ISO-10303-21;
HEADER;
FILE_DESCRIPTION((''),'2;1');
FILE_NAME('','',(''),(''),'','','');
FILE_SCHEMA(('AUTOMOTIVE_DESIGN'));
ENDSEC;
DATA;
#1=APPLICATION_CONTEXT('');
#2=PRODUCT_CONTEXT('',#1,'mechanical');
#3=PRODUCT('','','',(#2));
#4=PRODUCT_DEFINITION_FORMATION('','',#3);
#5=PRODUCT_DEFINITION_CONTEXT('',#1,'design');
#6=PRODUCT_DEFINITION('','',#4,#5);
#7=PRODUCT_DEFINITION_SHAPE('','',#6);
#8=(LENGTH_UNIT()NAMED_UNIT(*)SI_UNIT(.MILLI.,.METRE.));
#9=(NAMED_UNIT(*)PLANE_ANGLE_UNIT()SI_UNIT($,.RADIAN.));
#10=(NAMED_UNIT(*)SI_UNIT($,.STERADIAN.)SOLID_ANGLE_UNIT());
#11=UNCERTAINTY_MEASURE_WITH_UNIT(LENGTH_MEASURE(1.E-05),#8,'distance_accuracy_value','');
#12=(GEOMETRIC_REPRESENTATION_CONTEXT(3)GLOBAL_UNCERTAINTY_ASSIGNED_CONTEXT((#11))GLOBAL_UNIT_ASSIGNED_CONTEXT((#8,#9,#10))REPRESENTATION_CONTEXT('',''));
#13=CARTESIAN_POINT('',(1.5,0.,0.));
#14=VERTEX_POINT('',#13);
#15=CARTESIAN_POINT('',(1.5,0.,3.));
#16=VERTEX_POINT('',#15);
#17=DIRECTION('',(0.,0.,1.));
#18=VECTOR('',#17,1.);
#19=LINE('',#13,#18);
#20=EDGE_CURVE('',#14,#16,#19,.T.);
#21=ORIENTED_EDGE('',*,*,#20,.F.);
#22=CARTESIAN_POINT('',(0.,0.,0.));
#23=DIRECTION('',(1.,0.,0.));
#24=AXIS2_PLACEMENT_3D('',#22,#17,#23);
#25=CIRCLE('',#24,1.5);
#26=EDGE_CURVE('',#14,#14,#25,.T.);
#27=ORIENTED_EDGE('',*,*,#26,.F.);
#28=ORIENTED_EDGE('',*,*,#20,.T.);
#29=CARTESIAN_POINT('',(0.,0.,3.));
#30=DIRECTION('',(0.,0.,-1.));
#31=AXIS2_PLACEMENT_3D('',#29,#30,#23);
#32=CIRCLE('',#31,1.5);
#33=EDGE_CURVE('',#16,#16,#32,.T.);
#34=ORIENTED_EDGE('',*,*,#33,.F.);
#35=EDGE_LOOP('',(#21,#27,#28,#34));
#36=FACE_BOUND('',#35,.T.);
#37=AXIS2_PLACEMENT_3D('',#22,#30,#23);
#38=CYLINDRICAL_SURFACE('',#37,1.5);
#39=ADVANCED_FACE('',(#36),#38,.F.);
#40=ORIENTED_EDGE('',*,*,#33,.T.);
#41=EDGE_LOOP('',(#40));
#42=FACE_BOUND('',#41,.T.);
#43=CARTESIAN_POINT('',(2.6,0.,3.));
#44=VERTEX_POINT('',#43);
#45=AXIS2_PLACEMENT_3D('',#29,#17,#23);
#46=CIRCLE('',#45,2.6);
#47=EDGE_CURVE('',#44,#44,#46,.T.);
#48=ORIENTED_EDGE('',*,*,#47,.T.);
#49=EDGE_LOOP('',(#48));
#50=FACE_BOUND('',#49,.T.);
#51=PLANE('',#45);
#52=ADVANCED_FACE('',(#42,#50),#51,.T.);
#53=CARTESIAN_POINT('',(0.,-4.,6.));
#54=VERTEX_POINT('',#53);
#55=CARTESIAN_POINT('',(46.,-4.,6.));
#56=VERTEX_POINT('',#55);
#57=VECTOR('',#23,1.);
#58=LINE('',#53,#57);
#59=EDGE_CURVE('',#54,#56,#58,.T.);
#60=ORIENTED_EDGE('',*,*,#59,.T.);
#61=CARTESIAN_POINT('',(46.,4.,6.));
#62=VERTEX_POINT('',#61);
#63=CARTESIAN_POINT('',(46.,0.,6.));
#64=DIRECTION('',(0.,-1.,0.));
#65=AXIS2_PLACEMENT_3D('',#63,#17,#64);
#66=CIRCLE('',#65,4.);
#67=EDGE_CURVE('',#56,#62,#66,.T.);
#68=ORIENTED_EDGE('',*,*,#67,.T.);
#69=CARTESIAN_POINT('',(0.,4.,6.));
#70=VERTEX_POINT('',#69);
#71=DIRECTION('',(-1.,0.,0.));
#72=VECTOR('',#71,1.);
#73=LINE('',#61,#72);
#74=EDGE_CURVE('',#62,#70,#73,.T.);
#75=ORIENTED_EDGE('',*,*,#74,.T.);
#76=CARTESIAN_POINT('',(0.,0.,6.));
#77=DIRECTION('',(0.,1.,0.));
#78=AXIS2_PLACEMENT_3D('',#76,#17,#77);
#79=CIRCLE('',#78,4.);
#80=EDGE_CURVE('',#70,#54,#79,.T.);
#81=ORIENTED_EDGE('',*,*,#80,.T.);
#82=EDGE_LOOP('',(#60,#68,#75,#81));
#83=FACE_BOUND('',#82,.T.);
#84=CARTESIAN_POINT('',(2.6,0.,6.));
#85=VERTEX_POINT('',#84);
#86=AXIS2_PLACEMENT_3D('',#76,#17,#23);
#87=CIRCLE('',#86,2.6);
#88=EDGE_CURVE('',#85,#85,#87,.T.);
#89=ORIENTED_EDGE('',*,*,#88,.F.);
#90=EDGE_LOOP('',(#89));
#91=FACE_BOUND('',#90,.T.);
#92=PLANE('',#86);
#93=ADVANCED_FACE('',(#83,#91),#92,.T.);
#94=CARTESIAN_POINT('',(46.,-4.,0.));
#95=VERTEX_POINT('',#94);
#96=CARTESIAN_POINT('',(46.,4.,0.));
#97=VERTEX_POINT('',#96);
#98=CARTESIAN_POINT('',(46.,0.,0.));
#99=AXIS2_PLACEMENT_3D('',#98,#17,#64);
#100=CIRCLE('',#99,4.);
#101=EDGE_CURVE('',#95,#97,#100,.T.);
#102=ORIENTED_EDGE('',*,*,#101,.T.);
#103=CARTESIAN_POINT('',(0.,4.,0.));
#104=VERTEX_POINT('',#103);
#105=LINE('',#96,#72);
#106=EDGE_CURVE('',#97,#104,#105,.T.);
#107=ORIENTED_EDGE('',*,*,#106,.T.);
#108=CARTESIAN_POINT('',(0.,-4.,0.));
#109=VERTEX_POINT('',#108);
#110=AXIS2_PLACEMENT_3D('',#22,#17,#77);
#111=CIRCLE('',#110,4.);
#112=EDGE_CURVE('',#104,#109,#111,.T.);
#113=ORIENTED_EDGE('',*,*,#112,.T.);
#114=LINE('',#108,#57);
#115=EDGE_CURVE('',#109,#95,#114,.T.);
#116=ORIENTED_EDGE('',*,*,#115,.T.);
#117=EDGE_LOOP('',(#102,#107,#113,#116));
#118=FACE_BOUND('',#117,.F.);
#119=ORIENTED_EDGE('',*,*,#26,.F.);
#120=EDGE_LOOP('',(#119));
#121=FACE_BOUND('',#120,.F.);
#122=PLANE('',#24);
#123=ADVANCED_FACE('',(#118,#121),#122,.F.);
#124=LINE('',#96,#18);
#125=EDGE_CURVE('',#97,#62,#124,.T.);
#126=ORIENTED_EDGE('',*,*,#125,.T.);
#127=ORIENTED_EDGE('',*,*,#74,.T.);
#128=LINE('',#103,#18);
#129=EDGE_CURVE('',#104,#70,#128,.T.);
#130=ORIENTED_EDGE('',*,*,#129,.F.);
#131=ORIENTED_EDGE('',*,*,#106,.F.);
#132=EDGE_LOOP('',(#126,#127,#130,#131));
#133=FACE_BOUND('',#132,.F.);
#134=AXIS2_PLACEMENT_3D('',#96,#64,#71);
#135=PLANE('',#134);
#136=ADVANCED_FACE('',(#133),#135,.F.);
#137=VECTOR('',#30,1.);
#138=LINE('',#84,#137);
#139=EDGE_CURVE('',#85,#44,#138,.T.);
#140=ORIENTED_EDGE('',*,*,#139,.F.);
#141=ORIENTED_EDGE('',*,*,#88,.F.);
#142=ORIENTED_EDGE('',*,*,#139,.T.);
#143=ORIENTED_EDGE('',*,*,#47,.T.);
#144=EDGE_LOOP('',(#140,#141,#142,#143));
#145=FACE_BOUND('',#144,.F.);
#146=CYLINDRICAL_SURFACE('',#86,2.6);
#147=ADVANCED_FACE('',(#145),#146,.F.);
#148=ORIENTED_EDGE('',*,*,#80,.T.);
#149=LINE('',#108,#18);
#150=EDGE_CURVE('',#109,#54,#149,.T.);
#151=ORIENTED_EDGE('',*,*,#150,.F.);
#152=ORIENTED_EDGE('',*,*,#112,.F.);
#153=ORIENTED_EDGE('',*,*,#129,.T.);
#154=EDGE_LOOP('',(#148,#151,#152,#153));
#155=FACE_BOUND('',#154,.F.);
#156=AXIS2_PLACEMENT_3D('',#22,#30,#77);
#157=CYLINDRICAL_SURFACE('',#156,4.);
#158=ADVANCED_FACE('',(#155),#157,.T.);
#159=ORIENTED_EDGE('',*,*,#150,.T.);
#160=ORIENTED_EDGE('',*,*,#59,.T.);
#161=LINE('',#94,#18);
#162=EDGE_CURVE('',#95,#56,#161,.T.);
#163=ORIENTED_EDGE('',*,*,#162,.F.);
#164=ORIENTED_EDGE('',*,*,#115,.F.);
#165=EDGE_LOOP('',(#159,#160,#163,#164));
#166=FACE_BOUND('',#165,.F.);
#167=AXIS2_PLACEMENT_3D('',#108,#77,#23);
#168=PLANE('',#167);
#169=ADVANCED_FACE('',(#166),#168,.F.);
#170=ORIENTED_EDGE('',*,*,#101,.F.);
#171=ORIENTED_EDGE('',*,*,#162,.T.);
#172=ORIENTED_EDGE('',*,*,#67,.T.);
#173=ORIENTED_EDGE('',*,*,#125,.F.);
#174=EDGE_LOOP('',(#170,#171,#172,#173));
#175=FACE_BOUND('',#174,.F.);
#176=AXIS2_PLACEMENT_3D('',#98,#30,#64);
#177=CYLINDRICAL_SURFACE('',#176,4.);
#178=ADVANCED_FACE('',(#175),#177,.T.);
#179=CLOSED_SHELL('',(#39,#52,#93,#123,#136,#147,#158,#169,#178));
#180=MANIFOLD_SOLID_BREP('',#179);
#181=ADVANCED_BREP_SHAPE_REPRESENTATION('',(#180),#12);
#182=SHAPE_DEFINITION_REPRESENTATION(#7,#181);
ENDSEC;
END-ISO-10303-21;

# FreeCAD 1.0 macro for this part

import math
import FreeCAD as App
import Part
import Sketcher
from FreeCAD import Vector
Q = App.Units.Quantity

doc = App.newDocument("Part")
body = doc.addObject("PartDesign::Body", "Body")

sketch1 = body.newObject("Sketcher::SketchObject", "Sketch")
sketch1.AttachmentSupport = (doc.getObject("XY_Plane"), [""])
sketch1.MapMode = "FlatFace"
sketch1.addGeometry([
    Part.ArcOfCircle(Part.Circle(Vector(0, 0, 0), Vector(0, 0, 1), 4), math.radians(90), math.radians(270)),
    Part.LineSegment(Vector(0, -4, 0), Vector(46, -4, 0)),
    Part.ArcOfCircle(Part.Circle(Vector(46, 0, 0), Vector(0, 0, 1), 4), math.radians(-90), math.radians(90)),
    Part.LineSegment(Vector(46, 4, 0), Vector(0, 4, 0)),
    Part.Circle(Vector(0, 0, 0), Vector(0, 0, 1), 1.5),
], False)
sketch1.addConstraint([
    Sketcher.Constraint("Tangent", 0, 2, 1, 1),
    Sketcher.Constraint("Tangent", 1, 2, 2, 1),
    Sketcher.Constraint("Tangent", 2, 2, 3, 1),
    Sketcher.Constraint("Tangent", 3, 2, 0, 1),
    Sketcher.Constraint("Horizontal", 1),
    Sketcher.Constraint("Horizontal", 3),
    Sketcher.Constraint("Coincident", 0, 3, -1, 1),
    Sketcher.Constraint("Coincident", 4, 3, -1, 1),
    Sketcher.Constraint("Diameter", 4, Q("3 mm")),
    Sketcher.Constraint("DistanceX", 1, 1, 1, 2, Q("46 mm")),
    Sketcher.Constraint("Radius", 0, Q("4 mm")),
])
pad1 = body.newObject("PartDesign::Pad", "Pad")
pad1.Profile = sketch1
pad1.Length = 6

sketch2 = body.newObject("Sketcher::SketchObject", "Sketch001")
sketch2.AttachmentSupport = (doc.getObject("XY_Plane"), [""])
sketch2.MapMode = "FlatFace"
sketch2.AttachmentOffset = App.Placement(Vector(0, 0, 6), App.Rotation())
sketch2.addGeometry(Part.Circle(Vector(0, 0, 0), Vector(0, 0, 1), 2.6), False)
sketch2.addConstraint([
    Sketcher.Constraint("Coincident", 0, 3, -1, 1),
    Sketcher.Constraint("Diameter", 0, Q("5.2 mm")),
])
pocket1 = body.newObject("PartDesign::Pocket", "Pocket")
pocket1.Profile = sketch2
pocket1.Length = 3

doc.recompute()
